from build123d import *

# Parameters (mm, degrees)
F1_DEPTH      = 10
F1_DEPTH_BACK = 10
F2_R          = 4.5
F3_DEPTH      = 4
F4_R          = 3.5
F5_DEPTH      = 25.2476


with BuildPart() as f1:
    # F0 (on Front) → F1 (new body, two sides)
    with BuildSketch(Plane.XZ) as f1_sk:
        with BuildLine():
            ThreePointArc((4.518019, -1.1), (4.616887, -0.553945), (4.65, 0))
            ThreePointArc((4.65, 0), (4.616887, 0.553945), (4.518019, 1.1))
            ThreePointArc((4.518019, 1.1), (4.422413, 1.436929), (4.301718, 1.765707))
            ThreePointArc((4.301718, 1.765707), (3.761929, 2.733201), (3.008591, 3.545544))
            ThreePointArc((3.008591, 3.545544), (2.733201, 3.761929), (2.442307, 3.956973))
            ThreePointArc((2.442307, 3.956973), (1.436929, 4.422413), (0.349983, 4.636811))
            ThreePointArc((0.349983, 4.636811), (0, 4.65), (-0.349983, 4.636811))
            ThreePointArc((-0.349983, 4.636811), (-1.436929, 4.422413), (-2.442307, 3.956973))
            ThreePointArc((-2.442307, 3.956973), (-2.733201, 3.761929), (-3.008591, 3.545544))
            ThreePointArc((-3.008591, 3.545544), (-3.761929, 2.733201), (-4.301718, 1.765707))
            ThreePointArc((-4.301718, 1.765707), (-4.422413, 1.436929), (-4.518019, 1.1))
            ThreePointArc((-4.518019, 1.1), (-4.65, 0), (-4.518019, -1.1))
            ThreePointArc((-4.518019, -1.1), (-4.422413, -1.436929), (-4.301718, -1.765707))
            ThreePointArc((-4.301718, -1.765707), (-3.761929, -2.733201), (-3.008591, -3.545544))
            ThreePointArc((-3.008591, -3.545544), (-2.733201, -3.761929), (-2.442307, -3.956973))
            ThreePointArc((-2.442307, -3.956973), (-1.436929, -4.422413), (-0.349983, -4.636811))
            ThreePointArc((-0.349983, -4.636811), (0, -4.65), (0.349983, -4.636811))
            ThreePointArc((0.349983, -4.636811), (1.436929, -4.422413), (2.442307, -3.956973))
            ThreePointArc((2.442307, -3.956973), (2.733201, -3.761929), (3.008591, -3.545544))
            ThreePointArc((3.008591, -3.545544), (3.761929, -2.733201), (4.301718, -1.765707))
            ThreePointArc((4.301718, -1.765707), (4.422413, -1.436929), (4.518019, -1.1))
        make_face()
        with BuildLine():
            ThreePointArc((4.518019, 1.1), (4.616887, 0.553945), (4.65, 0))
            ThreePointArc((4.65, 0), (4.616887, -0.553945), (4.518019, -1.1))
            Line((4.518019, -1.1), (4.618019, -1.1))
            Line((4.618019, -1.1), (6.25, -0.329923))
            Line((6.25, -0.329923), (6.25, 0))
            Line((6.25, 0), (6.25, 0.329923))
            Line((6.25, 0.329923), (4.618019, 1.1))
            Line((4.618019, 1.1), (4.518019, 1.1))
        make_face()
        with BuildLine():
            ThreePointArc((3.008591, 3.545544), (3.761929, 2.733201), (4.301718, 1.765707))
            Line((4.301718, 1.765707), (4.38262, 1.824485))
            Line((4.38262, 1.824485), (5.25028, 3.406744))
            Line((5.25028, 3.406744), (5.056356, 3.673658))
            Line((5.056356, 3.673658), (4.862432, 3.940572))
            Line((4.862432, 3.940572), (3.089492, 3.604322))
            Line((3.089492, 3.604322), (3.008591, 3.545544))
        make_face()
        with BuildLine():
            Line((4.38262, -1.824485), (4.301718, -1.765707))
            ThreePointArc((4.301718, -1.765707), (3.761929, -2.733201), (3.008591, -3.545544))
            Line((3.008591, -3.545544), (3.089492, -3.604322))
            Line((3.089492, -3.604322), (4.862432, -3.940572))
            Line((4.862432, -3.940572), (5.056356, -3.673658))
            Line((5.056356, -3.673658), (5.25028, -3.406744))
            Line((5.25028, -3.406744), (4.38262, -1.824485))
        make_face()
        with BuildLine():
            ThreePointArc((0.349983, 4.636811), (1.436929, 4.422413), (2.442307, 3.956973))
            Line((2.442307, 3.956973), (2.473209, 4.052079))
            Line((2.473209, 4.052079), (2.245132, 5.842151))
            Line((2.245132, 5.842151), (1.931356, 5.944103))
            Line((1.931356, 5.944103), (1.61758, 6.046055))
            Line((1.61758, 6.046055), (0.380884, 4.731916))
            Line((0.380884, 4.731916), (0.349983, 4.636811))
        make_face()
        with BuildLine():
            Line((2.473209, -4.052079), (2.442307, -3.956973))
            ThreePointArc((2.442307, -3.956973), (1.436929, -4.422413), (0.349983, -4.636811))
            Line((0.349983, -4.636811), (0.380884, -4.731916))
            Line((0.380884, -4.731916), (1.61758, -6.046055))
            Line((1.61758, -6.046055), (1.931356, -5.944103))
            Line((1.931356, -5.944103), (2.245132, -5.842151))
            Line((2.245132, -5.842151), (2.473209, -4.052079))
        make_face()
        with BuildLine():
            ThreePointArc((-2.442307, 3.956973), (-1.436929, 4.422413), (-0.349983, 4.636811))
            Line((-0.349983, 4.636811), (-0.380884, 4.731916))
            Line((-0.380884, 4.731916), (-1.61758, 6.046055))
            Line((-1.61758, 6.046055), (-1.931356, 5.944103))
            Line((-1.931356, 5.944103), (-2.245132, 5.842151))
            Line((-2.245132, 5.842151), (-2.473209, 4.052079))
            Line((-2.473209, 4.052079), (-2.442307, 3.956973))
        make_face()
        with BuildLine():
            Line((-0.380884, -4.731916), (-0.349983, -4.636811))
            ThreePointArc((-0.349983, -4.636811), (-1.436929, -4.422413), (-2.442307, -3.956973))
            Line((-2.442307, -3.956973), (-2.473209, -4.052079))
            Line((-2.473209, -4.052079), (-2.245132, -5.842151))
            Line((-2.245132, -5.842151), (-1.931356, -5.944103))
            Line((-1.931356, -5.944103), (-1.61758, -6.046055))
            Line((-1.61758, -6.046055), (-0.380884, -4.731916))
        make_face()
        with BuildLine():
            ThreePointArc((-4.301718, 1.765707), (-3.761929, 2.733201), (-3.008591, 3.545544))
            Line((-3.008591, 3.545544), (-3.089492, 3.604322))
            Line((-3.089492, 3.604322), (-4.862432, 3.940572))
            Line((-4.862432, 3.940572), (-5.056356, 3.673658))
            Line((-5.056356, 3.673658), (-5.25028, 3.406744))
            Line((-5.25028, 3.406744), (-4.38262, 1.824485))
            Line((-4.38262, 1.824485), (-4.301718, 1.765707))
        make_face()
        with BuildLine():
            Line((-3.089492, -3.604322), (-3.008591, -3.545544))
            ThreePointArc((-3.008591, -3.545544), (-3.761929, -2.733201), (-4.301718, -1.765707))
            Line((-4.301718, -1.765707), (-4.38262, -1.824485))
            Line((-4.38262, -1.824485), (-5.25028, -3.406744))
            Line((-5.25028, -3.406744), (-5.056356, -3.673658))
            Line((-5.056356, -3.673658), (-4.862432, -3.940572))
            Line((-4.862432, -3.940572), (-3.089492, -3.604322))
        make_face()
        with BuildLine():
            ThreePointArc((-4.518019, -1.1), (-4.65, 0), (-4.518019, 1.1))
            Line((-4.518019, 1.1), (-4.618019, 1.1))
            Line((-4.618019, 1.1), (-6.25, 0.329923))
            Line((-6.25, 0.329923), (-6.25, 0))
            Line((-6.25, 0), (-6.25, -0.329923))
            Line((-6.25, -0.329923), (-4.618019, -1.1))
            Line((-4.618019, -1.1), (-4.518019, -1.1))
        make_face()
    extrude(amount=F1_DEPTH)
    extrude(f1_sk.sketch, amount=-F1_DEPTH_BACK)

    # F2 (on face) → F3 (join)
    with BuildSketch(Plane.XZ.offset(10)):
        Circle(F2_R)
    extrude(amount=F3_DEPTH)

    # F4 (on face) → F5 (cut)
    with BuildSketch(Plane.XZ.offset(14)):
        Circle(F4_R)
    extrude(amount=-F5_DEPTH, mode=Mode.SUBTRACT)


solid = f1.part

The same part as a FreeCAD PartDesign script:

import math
import FreeCAD as App
import Part
import Sketcher
from FreeCAD import Vector
Q = App.Units.Quantity

doc = App.newDocument("Part")
body = doc.addObject("PartDesign::Body", "Body")

sketch1 = body.newObject("Sketcher::SketchObject", "Sketch")
sketch1.AttachmentSupport = (doc.getObject("XZ_Plane"), [""])
sketch1.MapMode = "FlatFace"
sketch1.addGeometry([
    Part.ArcOfCircle(Part.Circle(Vector(0.000157, 0.000053, 0), Vector(0, 0, 1), 4.649834), math.radians(13.683366), math.radians(22.316585)),
    Part.LineSegment(Vector(4.301718, 1.765707, 0), Vector(4.38262, 1.824485, 0)),
    Part.LineSegment(Vector(4.38262, 1.824485, 0), Vector(5.25028, 3.406744, 0)),
    Part.LineSegment(Vector(5.25028, 3.406744, 0), Vector(4.862432, 3.940572, 0)),
    Part.LineSegment(Vector(4.862432, 3.940572, 0), Vector(3.089492, 3.604322, 0)),
    Part.LineSegment(Vector(3.089492, 3.604322, 0), Vector(3.008591, 3.545544, 0)),
    Part.ArcOfCircle(Part.Circle(Vector(-0.000063, -0.000091, 0), Vector(0, 0, 1), 4.650111), math.radians(49.683676), math.radians(58.316378)),
    Part.LineSegment(Vector(2.442307, 3.956973, 0), Vector(2.473209, 4.052079, 0)),
    Part.LineSegment(Vector(2.473209, 4.052079, 0), Vector(2.245132, 5.842151, 0)),
    Part.LineSegment(Vector(2.245132, 5.842151, 0), Vector(1.61758, 6.046055, 0)),
    Part.LineSegment(Vector(1.61758, 6.046055, 0), Vector(0.380884, 4.731916, 0)),
    Part.LineSegment(Vector(0.380884, 4.731916, 0), Vector(0.349983, 4.636811, 0)),
    Part.ArcOfCircle(Part.Circle(Vector(0, -0.000165, 0), Vector(0, 0, 1), 4.650165), math.radians(85.683695), math.radians(94.316305)),
    Part.LineSegment(Vector(-0.349983, 4.636811, 0), Vector(-0.380884, 4.731916, 0)),
    Part.LineSegment(Vector(-0.380884, 4.731916, 0), Vector(-1.61758, 6.046055, 0)),
    Part.LineSegment(Vector(-1.61758, 6.046055, 0), Vector(-2.245132, 5.842151, 0)),
    Part.LineSegment(Vector(-2.245132, 5.842151, 0), Vector(-2.473209, 4.052079, 0)),
    Part.LineSegment(Vector(-2.473209, 4.052079, 0), Vector(-2.442307, 3.956973, 0)),
    Part.ArcOfCircle(Part.Circle(Vector(0.000063, -0.000091, 0), Vector(0, 0, 1), 4.650111), math.radians(121.683622), math.radians(130.316324)),
    Part.LineSegment(Vector(-3.008591, 3.545544, 0), Vector(-3.089492, 3.604322, 0)),
    Part.LineSegment(Vector(-3.089492, 3.604322, 0), Vector(-4.862432, 3.940572, 0)),
    Part.LineSegment(Vector(-4.862432, 3.940572, 0), Vector(-5.25028, 3.406744, 0)),
    Part.LineSegment(Vector(-5.25028, 3.406744, 0), Vector(-4.38262, 1.824485, 0)),
    Part.LineSegment(Vector(-4.38262, 1.824485, 0), Vector(-4.301718, 1.765707, 0)),
    Part.ArcOfCircle(Part.Circle(Vector(-0.000157, 0.000053, 0), Vector(0, 0, 1), 4.649834), math.radians(157.683415), math.radians(166.316634)),
    Part.LineSegment(Vector(-4.518019, 1.1, 0), Vector(-4.618019, 1.1, 0)),
    Part.LineSegment(Vector(-4.618019, 1.1, 0), Vector(-6.25, 0.329923, 0)),
    Part.LineSegment(Vector(-6.25, 0.329923, 0), Vector(-6.25, -0.329923, 0)),
    Part.LineSegment(Vector(-6.25, -0.329923, 0), Vector(-4.618019, -1.1, 0)),
    Part.LineSegment(Vector(-4.618019, -1.1, 0), Vector(-4.518019, -1.1, 0)),
    Part.ArcOfCircle(Part.Circle(Vector(-0.000157, -0.000053, 0), Vector(0, 0, 1), 4.649834), math.radians(-166.316634), math.radians(-157.683415)),
    Part.LineSegment(Vector(-4.301718, -1.765707, 0), Vector(-4.38262, -1.824485, 0)),
    Part.LineSegment(Vector(-4.38262, -1.824485, 0), Vector(-5.25028, -3.406744, 0)),
    Part.LineSegment(Vector(-5.25028, -3.406744, 0), Vector(-4.862432, -3.940572, 0)),
    Part.LineSegment(Vector(-4.862432, -3.940572, 0), Vector(-3.089492, -3.604322, 0)),
    Part.LineSegment(Vector(-3.089492, -3.604322, 0), Vector(-3.008591, -3.545544, 0)),
    Part.ArcOfCircle(Part.Circle(Vector(0.000063, 0.000091, 0), Vector(0, 0, 1), 4.650111), math.radians(-130.316324), math.radians(-121.683622)),
    Part.LineSegment(Vector(-2.442307, -3.956973, 0), Vector(-2.473209, -4.052079, 0)),
    Part.LineSegment(Vector(-2.473209, -4.052079, 0), Vector(-2.245132, -5.842151, 0)),
    Part.LineSegment(Vector(-2.245132, -5.842151, 0), Vector(-1.61758, -6.046055, 0)),
    Part.LineSegment(Vector(-1.61758, -6.046055, 0), Vector(-0.380884, -4.731916, 0)),
    Part.LineSegment(Vector(-0.380884, -4.731916, 0), Vector(-0.349983, -4.636811, 0)),
    Part.ArcOfCircle(Part.Circle(Vector(0, 0.000165, 0), Vector(0, 0, 1), 4.650165), math.radians(-94.316305), math.radians(-85.683695)),
    Part.LineSegment(Vector(0.349983, -4.636811, 0), Vector(0.380884, -4.731916, 0)),
    Part.LineSegment(Vector(0.380884, -4.731916, 0), Vector(1.61758, -6.046055, 0)),
    Part.LineSegment(Vector(1.61758, -6.046055, 0), Vector(2.245132, -5.842151, 0)),
    Part.LineSegment(Vector(2.245132, -5.842151, 0), Vector(2.473209, -4.052079, 0)),
    Part.LineSegment(Vector(2.473209, -4.052079, 0), Vector(2.442307, -3.956973, 0)),
    Part.ArcOfCircle(Part.Circle(Vector(-0.000063, 0.000091, 0), Vector(0, 0, 1), 4.650111), math.radians(-58.316378), math.radians(-49.683676)),
    Part.LineSegment(Vector(3.008591, -3.545544, 0), Vector(3.089492, -3.604322, 0)),
    Part.LineSegment(Vector(3.089492, -3.604322, 0), Vector(4.862432, -3.940572, 0)),
    Part.LineSegment(Vector(4.862432, -3.940572, 0), Vector(5.25028, -3.406744, 0)),
    Part.LineSegment(Vector(5.25028, -3.406744, 0), Vector(4.38262, -1.824485, 0)),
    Part.LineSegment(Vector(4.38262, -1.824485, 0), Vector(4.301718, -1.765707, 0)),
    Part.ArcOfCircle(Part.Circle(Vector(0.000157, -0.000053, 0), Vector(0, 0, 1), 4.649834), math.radians(-22.316585), math.radians(-13.683366)),
    Part.LineSegment(Vector(4.518019, -1.1, 0), Vector(4.618019, -1.1, 0)),
    Part.LineSegment(Vector(4.618019, -1.1, 0), Vector(6.25, -0.329923, 0)),
    Part.LineSegment(Vector(6.25, -0.329923, 0), Vector(6.25, 0.329923, 0)),
    Part.LineSegment(Vector(6.25, 0.329923, 0), Vector(4.618019, 1.1, 0)),
    Part.LineSegment(Vector(4.618019, 1.1, 0), Vector(4.518019, 1.1, 0)),
], False)
sketch1.addConstraint([
    Sketcher.Constraint("Coincident", 0, 2, 1, 1),
    Sketcher.Constraint("Coincident", 1, 2, 2, 1),
    Sketcher.Constraint("Coincident", 2, 2, 3, 1),
    Sketcher.Constraint("Coincident", 3, 2, 4, 1),
    Sketcher.Constraint("Coincident", 4, 2, 5, 1),
    Sketcher.Constraint("Coincident", 5, 2, 6, 1),
    Sketcher.Constraint("Coincident", 6, 2, 7, 1),
    Sketcher.Constraint("Coincident", 7, 2, 8, 1),
    Sketcher.Constraint("Coincident", 8, 2, 9, 1),
    Sketcher.Constraint("Coincident", 9, 2, 10, 1),
    Sketcher.Constraint("Coincident", 10, 2, 11, 1),
    Sketcher.Constraint("Coincident", 11, 2, 12, 1),
    Sketcher.Constraint("Coincident", 12, 2, 13, 1),
    Sketcher.Constraint("Coincident", 13, 2, 14, 1),
    Sketcher.Constraint("Coincident", 14, 2, 15, 1),
    Sketcher.Constraint("Coincident", 15, 2, 16, 1),
    Sketcher.Constraint("Coincident", 16, 2, 17, 1),
    Sketcher.Constraint("Coincident", 17, 2, 18, 1),
    Sketcher.Constraint("Coincident", 18, 2, 19, 1),
    Sketcher.Constraint("Coincident", 19, 2, 20, 1),
    Sketcher.Constraint("Coincident", 20, 2, 21, 1),
    Sketcher.Constraint("Coincident", 21, 2, 22, 1),
    Sketcher.Constraint("Coincident", 22, 2, 23, 1),
    Sketcher.Constraint("Coincident", 23, 2, 24, 1),
    Sketcher.Constraint("Coincident", 24, 2, 25, 1),
    Sketcher.Constraint("Coincident", 25, 2, 26, 1),
    Sketcher.Constraint("Coincident", 26, 2, 27, 1),
    Sketcher.Constraint("Coincident", 27, 2, 28, 1),
    Sketcher.Constraint("Coincident", 28, 2, 29, 1),
    Sketcher.Constraint("Coincident", 29, 2, 30, 1),
    Sketcher.Constraint("Coincident", 30, 2, 31, 1),
    Sketcher.Constraint("Coincident", 31, 2, 32, 1),
    Sketcher.Constraint("Coincident", 32, 2, 33, 1),
    Sketcher.Constraint("Coincident", 33, 2, 34, 1),
    Sketcher.Constraint("Coincident", 34, 2, 35, 1),
    Sketcher.Constraint("Coincident", 35, 2, 36, 1),
    Sketcher.Constraint("Coincident", 36, 2, 37, 1),
    Sketcher.Constraint("Coincident", 37, 2, 38, 1),
    Sketcher.Constraint("Coincident", 38, 2, 39, 1),
    Sketcher.Constraint("Coincident", 39, 2, 40, 1),
    Sketcher.Constraint("Coincident", 40, 2, 41, 1),
    Sketcher.Constraint("Coincident", 41, 2, 42, 1),
    Sketcher.Constraint("Coincident", 42, 2, 43, 1),
    Sketcher.Constraint("Coincident", 43, 2, 44, 1),
    Sketcher.Constraint("Coincident", 44, 2, 45, 1),
    Sketcher.Constraint("Coincident", 45, 2, 46, 1),
    Sketcher.Constraint("Coincident", 46, 2, 47, 1),
    Sketcher.Constraint("Coincident", 47, 2, 48, 1),
    Sketcher.Constraint("Coincident", 48, 2, 49, 1),
    Sketcher.Constraint("Coincident", 49, 2, 50, 1),
    Sketcher.Constraint("Coincident", 50, 2, 51, 1),
    Sketcher.Constraint("Coincident", 51, 2, 52, 1),
    Sketcher.Constraint("Coincident", 52, 2, 53, 1),
    Sketcher.Constraint("Coincident", 53, 2, 54, 1),
    Sketcher.Constraint("Coincident", 54, 2, 55, 1),
    Sketcher.Constraint("Coincident", 55, 2, 56, 1),
    Sketcher.Constraint("Coincident", 56, 2, 57, 1),
    Sketcher.Constraint("Coincident", 57, 2, 58, 1),
    Sketcher.Constraint("Coincident", 58, 2, 59, 1),
    Sketcher.Constraint("Coincident", 59, 2, 0, 1),
    Sketcher.Constraint("Horizontal", 25),
    Sketcher.Constraint("Vertical", 27),
    Sketcher.Constraint("Horizontal", 29),
    Sketcher.Constraint("Horizontal", 55),
    Sketcher.Constraint("Vertical", 57),
    Sketcher.Constraint("Horizontal", 59),
    Sketcher.Constraint("Equal", 6, 18),
    Sketcher.Constraint("Equal", 0, 24),
    Sketcher.Constraint("Equal", 24, 30),
    Sketcher.Constraint("Equal", 18, 36),
    Sketcher.Constraint("Equal", 12, 42),
    Sketcher.Constraint("Equal", 36, 48),
    Sketcher.Constraint("Equal", 30, 54),
    Sketcher.Constraint("Symmetric", 0, 3, 30, 3, -1, 1),
    Sketcher.Constraint("Symmetric", 6, 3, 36, 3, -1, 1),
    Sketcher.Constraint("Symmetric", 12, 3, 42, 3, -1, 1),
    Sketcher.Constraint("Symmetric", 18, 3, 48, 3, -1, 1),
    Sketcher.Constraint("Symmetric", 24, 3, 54, 3, -1, 1),
    Sketcher.Constraint("Symmetric", 1, 2, 31, 2, -1, 1),
    Sketcher.Constraint("Symmetric", 2, 2, 32, 2, -1, 1),
    Sketcher.Constraint("Symmetric", 3, 2, 33, 2, -1, 1),
    Sketcher.Constraint("Symmetric", 4, 2, 34, 2, -1, 1),
    Sketcher.Constraint("Symmetric", 7, 2, 37, 2, -1, 1),
    Sketcher.Constraint("Symmetric", 8, 2, 38, 2, -1, 1),
    Sketcher.Constraint("Symmetric", 9, 2, 39, 2, -1, 1),
    Sketcher.Constraint("Symmetric", 10, 2, 40, 2, -1, 1),
    Sketcher.Constraint("Symmetric", 13, 2, 43, 2, -1, 1),
    Sketcher.Constraint("Symmetric", 14, 2, 44, 2, -1, 1),
    Sketcher.Constraint("Symmetric", 15, 2, 45, 2, -1, 1),
    Sketcher.Constraint("Symmetric", 16, 2, 46, 2, -1, 1),
    Sketcher.Constraint("Symmetric", 19, 2, 49, 2, -1, 1),
    Sketcher.Constraint("Symmetric", 20, 2, 50, 2, -1, 1),
    Sketcher.Constraint("Symmetric", 21, 2, 51, 2, -1, 1),
    Sketcher.Constraint("Symmetric", 22, 2, 52, 2, -1, 1),
    Sketcher.Constraint("Symmetric", 25, 2, 55, 2, -1, 1),
    Sketcher.Constraint("Symmetric", 26, 2, 56, 2, -1, 1),
    Sketcher.Constraint("Symmetric", 28, 2, 58, 2, -1, 1),
    Sketcher.Constraint("Symmetric", 6, 3, 18, 3, -2),
    Sketcher.Constraint("Symmetric", 0, 3, 24, 3, -2),
    Sketcher.Constraint("Symmetric", 11, 2, 12, 2, -2),
    Sketcher.Constraint("Symmetric", 10, 2, 13, 2, -2),
    Sketcher.Constraint("Symmetric", 9, 2, 14, 2, -2),
    Sketcher.Constraint("Symmetric", 8, 2, 15, 2, -2),
    Sketcher.Constraint("Symmetric", 7, 2, 16, 2, -2),
    Sketcher.Constraint("Symmetric", 4, 2, 19, 2, -2),
    Sketcher.Constraint("Symmetric", 3, 2, 20, 2, -2),
    Sketcher.Constraint("Symmetric", 2, 2, 21, 2, -2),
    Sketcher.Constraint("Symmetric", 1, 2, 22, 2, -2),
    Sketcher.Constraint("Symmetric", 28, 2, 55, 2, -2),
    Sketcher.Constraint("Perpendicular", 3, 5),
    Sketcher.Constraint("Perpendicular", 7, 9),
    Sketcher.Constraint("Perpendicular", 15, 17),
    Sketcher.Constraint("Perpendicular", 19, 21),
    Sketcher.Constraint("Parallel", 1, 31),
    Sketcher.Constraint("Perpendicular", 33, 35),
    Sketcher.Constraint("Perpendicular", 9, 37),
    Sketcher.Constraint("Parallel", 11, 41),
    Sketcher.Constraint("Parallel", 13, 43),
    Sketcher.Constraint("Perpendicular", 45, 47),
    Sketcher.Constraint("Perpendicular", 21, 49),
    Sketcher.Constraint("Parallel", 23, 53),
    Sketcher.Constraint("Parallel", 28, 58),
    Sketcher.Constraint("Horizontal", 0, 2, 23, 2),
    Sketcher.Constraint("Horizontal", 27, 2, 56, 2),
    Sketcher.Constraint("Equal", 2, 4),
    Sketcher.Constraint("Equal", 1, 5),
    Sketcher.Constraint("Equal", 5, 7),
    Sketcher.Constraint("Equal", 4, 8),
    Sketcher.Constraint("Equal", 3, 9),
    Sketcher.Constraint("Equal", 8, 10),
    Sketcher.Constraint("Equal", 7, 11),
    Sketcher.Constraint("Equal", 22, 26),
    Sketcher.Constraint("Angle", 5, Q("-144.000008 deg")),
    Sketcher.Constraint("Angle", 9, Q("162 deg")),
    Sketcher.Constraint("DistanceX", 25, 2, 25, 1, Q("0.1 mm")),
    Sketcher.Constraint("Distance", 1, Q("0.1 mm")),
    Sketcher.Constraint("DistanceY", -1, 1, 24, 2, Q("1.1 mm")),
    Sketcher.Constraint("DistanceX", 26, 2, -1, 1, Q("6.25 mm")),
    Sketcher.Constraint("Radius", 6, Q("4.650111 mm")),
    Sketcher.Constraint("Radius", 0, Q("4.649834 mm")),
    Sketcher.Constraint("Radius", 12, Q("4.650165 mm")),
    Sketcher.Constraint("DistanceY", 27, 2, 27, 1, Q("0.659846 mm")),
    Sketcher.Constraint("DistanceX", -1, 1, 1, 2, Q("4.38262 mm")),
    Sketcher.Constraint("DistanceX", -1, 1, 2, 2, Q("5.25028 mm")),
    Sketcher.Constraint("DistanceY", -1, 1, 3, 2, Q("3.940572 mm")),
    Sketcher.Constraint("DistanceX", -1, 1, 4, 2, Q("3.089492 mm")),
    Sketcher.Constraint("DistanceY", -1, 1, 4, 2, Q("3.604322 mm")),
    Sketcher.Constraint("DistanceX", -1, 1, 7, 2, Q("2.473209 mm")),
    Sketcher.Constraint("DistanceY", -1, 1, 7, 2, Q("4.052079 mm")),
    Sketcher.Constraint("DistanceX", -1, 1, 8, 2, Q("2.245132 mm")),
    Sketcher.Constraint("DistanceY", -1, 1, 8, 2, Q("5.842151 mm")),
    Sketcher.Constraint("DistanceY", -1, 1, 11, 2, Q("4.636811 mm")),
    Sketcher.Constraint("DistanceX", -1, 1, 0, 3, Q("0.000157 mm")),
    Sketcher.Constraint("DistanceY", 12, 3, -1, 1, Q("0.000165 mm")),
])
pad1 = body.newObject("PartDesign::Pad", "Pad")
pad1.Profile = sketch1
pad1.Type = "TwoLengths"
pad1.Length = 10
pad1.Length2 = 10

sketch2 = body.newObject("Sketcher::SketchObject", "Sketch001")
sketch2.AttachmentSupport = (doc.getObject("XZ_Plane"), [""])
sketch2.MapMode = "FlatFace"
sketch2.AttachmentOffset = App.Placement(Vector(0, 0, 10), App.Rotation())
sketch2.addGeometry(Part.Circle(Vector(0, 0, 0), Vector(0, 0, 1), 4.5), False)
sketch2.addConstraint([
    Sketcher.Constraint("Coincident", 0, 3, -1, 1),
    Sketcher.Constraint("Diameter", 0, Q("9 mm")),
])
pad2 = body.newObject("PartDesign::Pad", "Pad001")
pad2.Profile = sketch2
pad2.Length = 4

sketch3 = body.newObject("Sketcher::SketchObject", "Sketch002")
sketch3.AttachmentSupport = (doc.getObject("XZ_Plane"), [""])
sketch3.MapMode = "FlatFace"
sketch3.AttachmentOffset = App.Placement(Vector(0, 0, 14), App.Rotation())
sketch3.addGeometry(Part.Circle(Vector(0, 0, 0), Vector(0, 0, 1), 3.5), False)
sketch3.addConstraint([
    Sketcher.Constraint("Coincident", 0, 3, -1, 1),
    Sketcher.Constraint("Diameter", 0, Q("7 mm")),
])
pocket1 = body.newObject("PartDesign::Pocket", "Pocket")
pocket1.Profile = sketch3
pocket1.Length = 25.2476

doc.recompute()
